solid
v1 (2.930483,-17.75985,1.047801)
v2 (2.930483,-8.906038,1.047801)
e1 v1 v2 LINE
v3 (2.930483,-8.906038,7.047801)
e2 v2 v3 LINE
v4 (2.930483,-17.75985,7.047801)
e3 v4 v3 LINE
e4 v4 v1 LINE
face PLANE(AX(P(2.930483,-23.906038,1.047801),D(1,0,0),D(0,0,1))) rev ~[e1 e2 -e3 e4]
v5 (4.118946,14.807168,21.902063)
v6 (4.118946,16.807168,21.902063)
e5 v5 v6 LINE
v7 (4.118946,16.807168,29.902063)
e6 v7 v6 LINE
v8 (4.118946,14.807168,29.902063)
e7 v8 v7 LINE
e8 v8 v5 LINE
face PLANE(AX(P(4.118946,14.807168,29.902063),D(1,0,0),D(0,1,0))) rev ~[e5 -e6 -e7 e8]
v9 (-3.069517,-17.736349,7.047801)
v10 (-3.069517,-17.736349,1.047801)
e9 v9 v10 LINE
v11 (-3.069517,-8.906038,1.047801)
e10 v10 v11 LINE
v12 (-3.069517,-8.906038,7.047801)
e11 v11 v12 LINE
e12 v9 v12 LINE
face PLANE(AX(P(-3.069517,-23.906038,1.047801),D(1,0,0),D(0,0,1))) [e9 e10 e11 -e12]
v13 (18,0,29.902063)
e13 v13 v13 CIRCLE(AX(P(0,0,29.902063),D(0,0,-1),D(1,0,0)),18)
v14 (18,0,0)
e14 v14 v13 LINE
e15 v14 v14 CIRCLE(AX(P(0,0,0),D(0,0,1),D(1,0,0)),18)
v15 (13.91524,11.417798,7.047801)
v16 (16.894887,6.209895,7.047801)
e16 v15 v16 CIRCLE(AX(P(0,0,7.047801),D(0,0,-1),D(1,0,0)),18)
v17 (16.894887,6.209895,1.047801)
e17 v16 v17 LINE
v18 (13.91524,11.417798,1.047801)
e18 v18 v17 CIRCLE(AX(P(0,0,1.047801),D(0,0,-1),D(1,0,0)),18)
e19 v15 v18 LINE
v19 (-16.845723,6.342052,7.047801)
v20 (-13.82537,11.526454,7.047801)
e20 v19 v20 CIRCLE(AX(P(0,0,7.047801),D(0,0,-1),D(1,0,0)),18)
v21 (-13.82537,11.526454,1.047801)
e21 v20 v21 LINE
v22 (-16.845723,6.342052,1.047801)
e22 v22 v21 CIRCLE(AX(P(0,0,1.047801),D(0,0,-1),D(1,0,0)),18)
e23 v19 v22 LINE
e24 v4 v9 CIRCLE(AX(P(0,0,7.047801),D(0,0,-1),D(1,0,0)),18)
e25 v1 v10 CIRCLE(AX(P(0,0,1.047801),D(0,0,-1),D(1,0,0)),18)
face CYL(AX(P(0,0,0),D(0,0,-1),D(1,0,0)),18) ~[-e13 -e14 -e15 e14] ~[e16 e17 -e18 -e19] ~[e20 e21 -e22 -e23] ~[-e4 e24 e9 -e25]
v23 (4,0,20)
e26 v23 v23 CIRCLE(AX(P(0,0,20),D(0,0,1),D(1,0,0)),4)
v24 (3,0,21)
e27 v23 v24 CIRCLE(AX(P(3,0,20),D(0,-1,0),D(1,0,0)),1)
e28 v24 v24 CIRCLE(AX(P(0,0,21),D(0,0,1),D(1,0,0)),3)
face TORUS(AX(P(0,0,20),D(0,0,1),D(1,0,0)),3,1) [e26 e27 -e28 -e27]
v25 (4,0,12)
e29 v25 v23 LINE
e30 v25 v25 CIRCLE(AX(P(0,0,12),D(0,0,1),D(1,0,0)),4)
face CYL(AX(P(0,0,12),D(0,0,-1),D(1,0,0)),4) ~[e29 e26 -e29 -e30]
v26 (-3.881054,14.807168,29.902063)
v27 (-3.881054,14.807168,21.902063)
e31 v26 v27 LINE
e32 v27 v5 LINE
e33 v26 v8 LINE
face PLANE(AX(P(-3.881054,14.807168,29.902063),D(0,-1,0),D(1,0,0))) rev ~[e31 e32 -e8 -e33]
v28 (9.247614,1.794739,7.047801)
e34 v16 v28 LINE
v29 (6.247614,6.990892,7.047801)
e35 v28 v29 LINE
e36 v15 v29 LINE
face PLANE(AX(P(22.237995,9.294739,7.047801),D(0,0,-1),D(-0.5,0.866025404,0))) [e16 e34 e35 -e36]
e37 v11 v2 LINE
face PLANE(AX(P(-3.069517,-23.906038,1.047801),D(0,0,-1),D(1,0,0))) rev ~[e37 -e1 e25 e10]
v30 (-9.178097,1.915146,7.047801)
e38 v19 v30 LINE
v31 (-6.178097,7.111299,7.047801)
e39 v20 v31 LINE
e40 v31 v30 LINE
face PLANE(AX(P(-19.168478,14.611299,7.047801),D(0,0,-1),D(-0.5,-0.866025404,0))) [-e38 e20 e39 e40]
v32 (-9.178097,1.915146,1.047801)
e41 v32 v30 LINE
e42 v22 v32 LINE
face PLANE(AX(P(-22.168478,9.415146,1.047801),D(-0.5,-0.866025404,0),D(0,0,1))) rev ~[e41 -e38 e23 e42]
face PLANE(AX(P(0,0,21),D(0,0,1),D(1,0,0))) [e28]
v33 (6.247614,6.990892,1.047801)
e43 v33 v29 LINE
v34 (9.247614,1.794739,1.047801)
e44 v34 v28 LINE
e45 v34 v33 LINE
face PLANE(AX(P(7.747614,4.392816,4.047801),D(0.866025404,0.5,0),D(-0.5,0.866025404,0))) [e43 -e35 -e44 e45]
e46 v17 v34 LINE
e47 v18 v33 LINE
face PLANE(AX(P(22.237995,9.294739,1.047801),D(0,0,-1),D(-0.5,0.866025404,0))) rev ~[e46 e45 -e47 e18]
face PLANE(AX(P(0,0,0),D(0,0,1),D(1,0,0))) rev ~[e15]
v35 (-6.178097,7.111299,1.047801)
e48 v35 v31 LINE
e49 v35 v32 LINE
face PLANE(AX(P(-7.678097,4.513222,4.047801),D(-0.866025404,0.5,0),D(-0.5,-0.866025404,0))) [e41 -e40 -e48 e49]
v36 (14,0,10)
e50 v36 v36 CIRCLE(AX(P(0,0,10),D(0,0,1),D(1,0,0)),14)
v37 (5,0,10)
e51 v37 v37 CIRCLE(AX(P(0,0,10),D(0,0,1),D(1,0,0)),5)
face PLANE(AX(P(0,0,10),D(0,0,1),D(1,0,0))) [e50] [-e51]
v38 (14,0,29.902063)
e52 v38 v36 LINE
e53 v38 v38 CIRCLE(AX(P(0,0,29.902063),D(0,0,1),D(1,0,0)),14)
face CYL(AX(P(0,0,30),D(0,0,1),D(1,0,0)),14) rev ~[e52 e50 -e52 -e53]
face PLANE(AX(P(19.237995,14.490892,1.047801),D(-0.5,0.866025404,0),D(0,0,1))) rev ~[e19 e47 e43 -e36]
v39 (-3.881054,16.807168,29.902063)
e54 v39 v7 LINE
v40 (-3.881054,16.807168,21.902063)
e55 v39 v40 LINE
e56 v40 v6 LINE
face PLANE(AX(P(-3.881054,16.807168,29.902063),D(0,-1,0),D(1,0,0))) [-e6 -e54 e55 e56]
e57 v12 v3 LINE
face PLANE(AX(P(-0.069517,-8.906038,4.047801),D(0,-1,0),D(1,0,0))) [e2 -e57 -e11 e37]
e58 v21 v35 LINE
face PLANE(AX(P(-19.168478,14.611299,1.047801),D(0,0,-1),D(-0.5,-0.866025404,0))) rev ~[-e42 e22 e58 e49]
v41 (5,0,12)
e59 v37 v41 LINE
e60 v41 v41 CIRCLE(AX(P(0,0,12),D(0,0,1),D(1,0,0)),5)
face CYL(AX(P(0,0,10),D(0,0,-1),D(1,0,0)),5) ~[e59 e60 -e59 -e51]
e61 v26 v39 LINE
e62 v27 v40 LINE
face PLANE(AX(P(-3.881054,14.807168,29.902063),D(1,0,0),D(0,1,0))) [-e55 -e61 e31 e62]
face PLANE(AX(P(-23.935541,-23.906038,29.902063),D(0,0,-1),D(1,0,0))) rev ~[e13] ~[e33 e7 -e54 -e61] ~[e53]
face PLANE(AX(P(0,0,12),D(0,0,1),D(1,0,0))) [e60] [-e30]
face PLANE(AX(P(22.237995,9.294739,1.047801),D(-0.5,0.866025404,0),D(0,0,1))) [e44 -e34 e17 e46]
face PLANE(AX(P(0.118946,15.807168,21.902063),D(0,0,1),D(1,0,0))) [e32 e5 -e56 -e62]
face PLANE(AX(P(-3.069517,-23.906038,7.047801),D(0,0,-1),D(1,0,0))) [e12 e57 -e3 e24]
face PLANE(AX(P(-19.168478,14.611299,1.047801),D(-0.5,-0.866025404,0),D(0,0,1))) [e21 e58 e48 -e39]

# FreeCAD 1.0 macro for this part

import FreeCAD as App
import Part
import Sketcher
from FreeCAD import Vector
Q = App.Units.Quantity


def edges_at(feature, points):
    """Names of the edges that pass closest to the given points."""
    edges = feature.Shape.Edges
    near = lambda p: min(range(len(edges)), key=lambda i: edges[i].distToShape(Part.Vertex(*p))[0])
    return sorted({f"Edge{near(p) + 1}" for p in points})


def add_polygon(sketch, points):
    """Adds a closed chain of lines whose ends are joined by coincident constraints."""
    first, n = sketch.GeometryCount, len(points)
    for a, b in zip(points, points[1:] + points[:1]):
        sketch.addGeometry(Part.LineSegment(App.Vector(*a, 0), App.Vector(*b, 0)), False)
    for i in range(n):
        sketch.addConstraint(Sketcher.Constraint("Coincident", first + i, 2, first + (i + 1) % n, 1))

doc = App.newDocument("Part")
params = doc.addObject("Spreadsheet::Sheet", "Params")
for row, (alias, value) in enumerate([
    ("sketch1_diameter", "36 mm"),
    ("pad1_length", "30 mm"),
    ("sketch2_diameter", "28 mm"),
    ("pocket1_length", "20 mm"),
    ("sketch3_diameter", "10 mm"),
    ("pad2_length", "2 mm"),
    ("sketch4_diameter", "8 mm"),
    ("pad3_length", "9 mm"),
    ("fillet_radius", "1 mm"),
    ("pad4_length", "10 mm"),
    ("sketch6_width", "6 mm"),
    ("pocket2_length", "15 mm"),
    ("sketch8_width", "8 mm"),
    ("sketch8_height", "2 mm"),
    ("pocket4_length", "8 mm"),
], start=1):
    params.set(f"A{row}", alias)
    params.set(f"B{row}", "=" + value)
    params.setAlias(f"B{row}", alias)

body = doc.addObject("PartDesign::Body", "Body")

sketch1 = body.newObject("Sketcher::SketchObject", "Sketch")
sketch1.AttachmentSupport = (doc.getObject("XY_Plane"), [""])
sketch1.MapMode = "FlatFace"
sketch1.addGeometry(Part.Circle(Vector(0, 0, 0), Vector(0, 0, 1), 18), False)
sketch1.addConstraint(Sketcher.Constraint("Coincident", 0, 3, -1, 1))
sketch1.addConstraint(Sketcher.Constraint("Diameter", 0, Q("36 mm")))
sketch1.setExpression("Constraints[1]", "Params.sketch1_diameter")
pad1 = body.newObject("PartDesign::Pad", "Pad")
pad1.Profile = sketch1
pad1.setExpression("Length", "Params.pad1_length")

sketch2 = body.newObject("Sketcher::SketchObject", "Sketch001")
sketch2.AttachmentSupport = (doc.getObject("XY_Plane"), [""])
sketch2.MapMode = "FlatFace"
sketch2.AttachmentOffset = App.Placement(Vector(0, 0, 30), App.Rotation())
sketch2.addGeometry(Part.Circle(Vector(0, 0, 0), Vector(0, 0, 1), 14), False)
sketch2.addConstraint(Sketcher.Constraint("Coincident", 0, 3, -1, 1))
sketch2.addConstraint(Sketcher.Constraint("Diameter", 0, Q("28 mm")))
sketch2.setExpression("Constraints[1]", "Params.sketch2_diameter")
pocket1 = body.newObject("PartDesign::Pocket", "Pocket")
pocket1.Profile = sketch2
pocket1.setExpression("Length", "Params.pocket1_length")

sketch3 = body.newObject("Sketcher::SketchObject", "Sketch002")
sketch3.AttachmentSupport = (doc.getObject("XY_Plane"), [""])
sketch3.MapMode = "FlatFace"
sketch3.AttachmentOffset = App.Placement(Vector(0, 0, 10), App.Rotation())
sketch3.addGeometry(Part.Circle(Vector(0, 0, 0), Vector(0, 0, 1), 5), False)
sketch3.addConstraint(Sketcher.Constraint("Coincident", 0, 3, -1, 1))
sketch3.addConstraint(Sketcher.Constraint("Diameter", 0, Q("10 mm")))
sketch3.setExpression("Constraints[1]", "Params.sketch3_diameter")
pad2 = body.newObject("PartDesign::Pad", "Pad001")
pad2.Profile = sketch3
pad2.setExpression("Length", "Params.pad2_length")

sketch4 = body.newObject("Sketcher::SketchObject", "Sketch003")
sketch4.AttachmentSupport = (doc.getObject("XY_Plane"), [""])
sketch4.MapMode = "FlatFace"
sketch4.AttachmentOffset = App.Placement(Vector(0, 0, 12), App.Rotation())
sketch4.addGeometry(Part.Circle(Vector(0, 0, 0), Vector(0, 0, 1), 4), False)
sketch4.addConstraint(Sketcher.Constraint("Coincident", 0, 3, -1, 1))
sketch4.addConstraint(Sketcher.Constraint("Diameter", 0, Q("8 mm")))
sketch4.setExpression("Constraints[1]", "Params.sketch4_diameter")
pad3 = body.newObject("PartDesign::Pad", "Pad002")
pad3.Profile = sketch4
pad3.setExpression("Length", "Params.pad3_length")
doc.recompute()

fillet = body.newObject("PartDesign::Fillet", "Fillet")
fillet.Base = (pad3, edges_at(pad3, [(-4, 0, 21)]))
fillet.setExpression("Radius", "Params.fillet_radius")

sketch5 = body.newObject("Sketcher::SketchObject", "Sketch004")
sketch5.AttachmentSupport = (doc.getObject("XY_Plane"), [""])
sketch5.MapMode = "FlatFace"
sketch5.AttachmentOffset = App.Placement(Vector(0, 0, 30), App.Rotation())
add_polygon(sketch5, [(-23.37134, 23.540032), (-23.37134, -23.906038), (23.662149, -23.906038), (23.662149, 23.540032)])
sketch5.addConstraint(Sketcher.Constraint("Vertical", 0))
sketch5.addConstraint(Sketcher.Constraint("Horizontal", 1))
sketch5.addConstraint(Sketcher.Constraint("Vertical", 2))
sketch5.addConstraint(Sketcher.Constraint("Horizontal", 3))
sketch5.addConstraint(Sketcher.Constraint("DistanceX", 1, 1, 1, 2, Q("47.033489 mm")))
sketch5.addConstraint(Sketcher.Constraint("DistanceY", 0, 2, 0, 1, Q("47.446069 mm")))
sketch5.addConstraint(Sketcher.Constraint("DistanceX", 0, 2, -1, 1, Q("23.37134 mm")))
sketch5.addConstraint(Sketcher.Constraint("DistanceY", -1, 1, 2, 2, Q("23.540032 mm")))
pad4 = body.newObject("PartDesign::Pad", "Pad003")
pad4.Profile = sketch5
pad4.setExpression("Length", "Params.pad4_length")

sketch6 = body.newObject("Sketcher::SketchObject", "Sketch005")
sketch6.AttachmentSupport = (doc.getObject("XZ_Plane"), [""])
sketch6.MapMode = "FlatFace"
sketch6.AttachmentOffset = App.Placement(Vector(0, 0, 23.906038), App.Rotation())
add_polygon(sketch6, [(-3.069517, 7.047801), (-3.069517, 1.047801), (2.930483, 1.047801), (2.930483, 7.047801)])
sketch6.addConstraint(Sketcher.Constraint("Vertical", 0))
sketch6.addConstraint(Sketcher.Constraint("Horizontal", 1))
sketch6.addConstraint(Sketcher.Constraint("Vertical", 2))
sketch6.addConstraint(Sketcher.Constraint("Horizontal", 3))
sketch6.addConstraint(Sketcher.Constraint("Equal", 3, 0))
sketch6.addConstraint(Sketcher.Constraint("DistanceX", 1, 1, 1, 2, Q("6 mm")))
sketch6.addConstraint(Sketcher.Constraint("DistanceY", -1, 1, 0, 2, Q("1.047801 mm")))
sketch6.addConstraint(Sketcher.Constraint("DistanceX", 0, 2, -1, 1, Q("3.069517 mm")))
sketch6.setExpression("Constraints[9]", "Params.sketch6_width")
pocket2 = body.newObject("PartDesign::Pocket", "Pocket001")
pocket2.Profile = sketch6
pocket2.setExpression("Length", "Params.pocket2_length")
doc.recompute()

polarpattern = body.newObject("PartDesign::PolarPattern", "PolarPattern")
polarpattern.Originals = [pocket2]
polarpattern.Axis = (doc.getObject("Z_Axis"), [""])
polarpattern.Angle = 360
polarpattern.Occurrences = 3
body.Tip = polarpattern

sketch7 = body.newObject("Sketcher::SketchObject", "Sketch006")
sketch7.AttachmentSupport = (doc.getObject("XZ_Plane"), [""])
sketch7.MapMode = "FlatFace"
sketch7.AttachmentOffset = App.Placement(Vector(0, 0, 23.906038), App.Rotation())
add_polygon(sketch7, [(-23.935541, 40.342873), (-23.935541, 29.902063), (24.465029, 29.902063), (24.465029, 40.342873)])
sketch7.addConstraint(Sketcher.Constraint("Vertical", 0))
sketch7.addConstraint(Sketcher.Constraint("Horizontal", 1))
sketch7.addConstraint(Sketcher.Constraint("Vertical", 2))
sketch7.addConstraint(Sketcher.Constraint("Horizontal", 3))
sketch7.addConstraint(Sketcher.Constraint("DistanceX", 1, 1, 1, 2, Q("48.40057 mm")))
sketch7.addConstraint(Sketcher.Constraint("DistanceY", 0, 2, 0, 1, Q("10.44081 mm")))
sketch7.addConstraint(Sketcher.Constraint("DistanceX", 0, 2, -1, 1, Q("23.935541 mm")))
sketch7.addConstraint(Sketcher.Constraint("DistanceY", -1, 1, 0, 2, Q("29.902063 mm")))
pocket3 = body.newObject("PartDesign::Pocket", "Pocket002")
pocket3.Profile = sketch7
pocket3.Type = "ThroughAll"

sketch8 = body.newObject("Sketcher::SketchObject", "Sketch007")
sketch8.AttachmentSupport = (doc.getObject("XY_Plane"), [""])
sketch8.MapMode = "FlatFace"
sketch8.AttachmentOffset = App.Placement(Vector(0, 0, 29.902063), App.Rotation())
add_polygon(sketch8, [(-3.881054, 16.807168), (-3.881054, 14.807168), (4.118946, 14.807168), (4.118946, 16.807168)])
sketch8.addConstraint(Sketcher.Constraint("Vertical", 0))
sketch8.addConstraint(Sketcher.Constraint("Horizontal", 1))
sketch8.addConstraint(Sketcher.Constraint("Vertical", 2))
sketch8.addConstraint(Sketcher.Constraint("Horizontal", 3))
sketch8.addConstraint(Sketcher.Constraint("DistanceX", 1, 1, 1, 2, Q("8 mm")))
sketch8.addConstraint(Sketcher.Constraint("DistanceY", 0, 2, 0, 1, Q("2 mm")))
sketch8.addConstraint(Sketcher.Constraint("DistanceY", -1, 1, 0, 2, Q("14.807168 mm")))
sketch8.addConstraint(Sketcher.Constraint("DistanceX", 0, 2, -1, 1, Q("3.881054 mm")))
sketch8.setExpression("Constraints[8]", "Params.sketch8_width")
sketch8.setExpression("Constraints[9]", "Params.sketch8_height")
pocket4 = body.newObject("PartDesign::Pocket", "Pocket003")
pocket4.Profile = sketch8
pocket4.setExpression("Length", "Params.pocket4_length")

doc.recompute()
